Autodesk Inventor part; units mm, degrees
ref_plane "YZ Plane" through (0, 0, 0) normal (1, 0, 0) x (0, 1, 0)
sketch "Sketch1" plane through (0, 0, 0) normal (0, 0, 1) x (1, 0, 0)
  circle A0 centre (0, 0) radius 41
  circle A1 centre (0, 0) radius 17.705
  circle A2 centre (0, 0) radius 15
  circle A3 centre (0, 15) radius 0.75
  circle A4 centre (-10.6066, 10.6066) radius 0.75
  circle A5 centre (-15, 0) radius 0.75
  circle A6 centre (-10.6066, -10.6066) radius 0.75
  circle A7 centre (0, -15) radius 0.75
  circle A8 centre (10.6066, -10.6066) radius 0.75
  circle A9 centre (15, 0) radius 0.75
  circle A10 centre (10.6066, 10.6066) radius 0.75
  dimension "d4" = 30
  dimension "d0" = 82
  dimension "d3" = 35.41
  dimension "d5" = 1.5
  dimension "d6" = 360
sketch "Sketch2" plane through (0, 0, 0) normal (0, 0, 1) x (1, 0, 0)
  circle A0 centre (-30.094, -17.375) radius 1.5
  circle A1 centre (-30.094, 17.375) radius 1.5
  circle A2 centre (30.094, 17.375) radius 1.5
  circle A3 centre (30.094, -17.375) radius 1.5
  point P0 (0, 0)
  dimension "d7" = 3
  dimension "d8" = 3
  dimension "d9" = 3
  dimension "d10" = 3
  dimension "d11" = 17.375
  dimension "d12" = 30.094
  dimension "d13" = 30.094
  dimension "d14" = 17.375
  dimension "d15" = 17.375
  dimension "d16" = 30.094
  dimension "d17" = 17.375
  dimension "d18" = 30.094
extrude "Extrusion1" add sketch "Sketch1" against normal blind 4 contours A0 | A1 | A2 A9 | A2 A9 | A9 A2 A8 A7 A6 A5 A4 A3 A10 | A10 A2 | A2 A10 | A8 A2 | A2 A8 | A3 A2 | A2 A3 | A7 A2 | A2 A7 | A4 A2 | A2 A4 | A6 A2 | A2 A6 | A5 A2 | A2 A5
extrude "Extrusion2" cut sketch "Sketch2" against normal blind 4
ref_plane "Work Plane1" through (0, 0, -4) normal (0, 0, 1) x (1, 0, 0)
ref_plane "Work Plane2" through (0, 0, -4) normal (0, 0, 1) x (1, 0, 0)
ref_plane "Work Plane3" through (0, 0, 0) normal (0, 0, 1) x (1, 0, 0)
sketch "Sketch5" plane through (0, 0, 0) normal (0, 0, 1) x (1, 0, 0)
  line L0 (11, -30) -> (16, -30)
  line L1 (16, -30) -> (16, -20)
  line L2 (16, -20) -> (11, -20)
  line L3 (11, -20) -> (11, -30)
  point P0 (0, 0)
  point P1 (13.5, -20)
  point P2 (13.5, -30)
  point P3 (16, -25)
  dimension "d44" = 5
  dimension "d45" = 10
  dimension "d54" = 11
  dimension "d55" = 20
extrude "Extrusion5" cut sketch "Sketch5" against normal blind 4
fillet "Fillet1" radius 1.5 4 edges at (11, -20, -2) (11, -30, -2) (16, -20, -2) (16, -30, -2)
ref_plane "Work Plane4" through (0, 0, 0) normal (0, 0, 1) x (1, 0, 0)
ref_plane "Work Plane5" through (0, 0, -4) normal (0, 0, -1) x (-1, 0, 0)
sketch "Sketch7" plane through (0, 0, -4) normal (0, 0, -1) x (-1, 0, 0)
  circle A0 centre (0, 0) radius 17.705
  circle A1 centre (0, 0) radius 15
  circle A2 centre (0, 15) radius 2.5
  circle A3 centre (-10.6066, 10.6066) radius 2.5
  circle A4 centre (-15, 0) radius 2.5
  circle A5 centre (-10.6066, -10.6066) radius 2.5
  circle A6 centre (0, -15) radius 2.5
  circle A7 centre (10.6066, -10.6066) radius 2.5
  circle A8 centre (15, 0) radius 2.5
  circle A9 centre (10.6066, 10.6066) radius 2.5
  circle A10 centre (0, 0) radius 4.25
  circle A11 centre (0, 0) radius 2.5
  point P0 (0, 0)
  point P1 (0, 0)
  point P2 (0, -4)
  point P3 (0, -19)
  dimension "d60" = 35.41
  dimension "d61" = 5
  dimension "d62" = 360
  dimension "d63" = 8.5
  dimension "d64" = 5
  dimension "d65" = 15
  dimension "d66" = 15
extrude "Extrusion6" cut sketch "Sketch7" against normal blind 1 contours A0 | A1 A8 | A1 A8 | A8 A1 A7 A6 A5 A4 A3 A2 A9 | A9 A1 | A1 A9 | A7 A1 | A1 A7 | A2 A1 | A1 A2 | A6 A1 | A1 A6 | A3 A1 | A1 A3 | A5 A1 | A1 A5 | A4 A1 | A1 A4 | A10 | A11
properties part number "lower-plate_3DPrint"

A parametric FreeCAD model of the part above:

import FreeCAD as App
import Part
import Sketcher
from FreeCAD import Vector
Q = App.Units.Quantity


def edges_at(feature, points):
    """Names of the edges that pass closest to the given points."""
    edges = feature.Shape.Edges
    near = lambda p: min(range(len(edges)), key=lambda i: edges[i].distToShape(Part.Vertex(*p))[0])
    return sorted({f"Edge{near(p) + 1}" for p in points})

doc = App.newDocument("Part")
body = doc.addObject("PartDesign::Body", "Body")

# Sketch on XY plane
sketch1 = body.newObject("Sketcher::SketchObject", "Sketch")
sketch1.AttachmentSupport = (doc.getObject("XY_Plane"), [""])
sketch1.MapMode = "FlatFace"
sketch1.addGeometry(Part.Circle(Vector(0, 0, 0), Vector(0, 0, 1), 41), False)
sketch1.addConstraint([
    Sketcher.Constraint("Coincident", 0, 3, -1, 1),
    Sketcher.Constraint("Diameter", 0, Q("82 mm")),
])
pad1 = body.newObject("PartDesign::Pad", "Pad")
pad1.Profile = sketch1
pad1.Length = 4
pad1.Reversed = True

# Sketch on XY plane
sketch2 = body.newObject("Sketcher::SketchObject", "Sketch001")
sketch2.AttachmentSupport = (doc.getObject("XY_Plane"), [""])
sketch2.MapMode = "FlatFace"
sketch2.addGeometry([
    Part.Circle(Vector(-30.1, -17.4, 0), Vector(0, 0, 1), 1.5),
    Part.Circle(Vector(-30.1, 17.4, 0), Vector(0, 0, 1), 1.5),
    Part.Circle(Vector(30.1, 17.4, 0), Vector(0, 0, 1), 1.5),
    Part.Circle(Vector(30.1, -17.4, 0), Vector(0, 0, 1), 1.5),
], False)
sketch2.addConstraint([
    Sketcher.Constraint("Equal", 0, 1),
    Sketcher.Constraint("Equal", 1, 2),
    Sketcher.Constraint("Equal", 2, 3),
    Sketcher.Constraint("Symmetric", 0, 3, 2, 3, -1, 1),
    Sketcher.Constraint("Symmetric", 1, 3, 3, 3, -1, 1),
    Sketcher.Constraint("Symmetric", 1, 3, 2, 3, -2),
    Sketcher.Constraint("Diameter", 0, Q("3 mm")),
    Sketcher.Constraint("DistanceX", 0, 3, -1, 1, Q("30.094 mm")),
    Sketcher.Constraint("DistanceY", 0, 3, -1, 1, Q("17.375 mm")),
])
pocket1 = body.newObject("PartDesign::Pocket", "Pocket")
pocket1.Profile = sketch2
pocket1.Length = 4

# Sketch on XY plane
sketch3 = body.newObject("Sketcher::SketchObject", "Sketch002")
sketch3.AttachmentSupport = (doc.getObject("XY_Plane"), [""])
sketch3.MapMode = "FlatFace"
sketch3.addGeometry([
    Part.LineSegment(Vector(11, -20, 0), Vector(11, -30, 0)),
    Part.LineSegment(Vector(11, -30, 0), Vector(16, -30, 0)),
    Part.LineSegment(Vector(16, -30, 0), Vector(16, -20, 0)),
    Part.LineSegment(Vector(16, -20, 0), Vector(11, -20, 0)),
], False)
sketch3.addConstraint([
    Sketcher.Constraint("Coincident", 0, 2, 1, 1),
    Sketcher.Constraint("Coincident", 1, 2, 2, 1),
    Sketcher.Constraint("Coincident", 2, 2, 3, 1),
    Sketcher.Constraint("Coincident", 3, 2, 0, 1),
    Sketcher.Constraint("Vertical", 0),
    Sketcher.Constraint("Horizontal", 1),
    Sketcher.Constraint("Vertical", 2),
    Sketcher.Constraint("Horizontal", 3),
    Sketcher.Constraint("DistanceX", 1, 1, 1, 2, Q("5 mm")),
    Sketcher.Constraint("DistanceY", 0, 2, 0, 1, Q("10 mm")),
    Sketcher.Constraint("DistanceX", -1, 1, 0, 2, Q("11 mm")),
    Sketcher.Constraint("DistanceY", 2, 2, -1, 1, Q("20 mm")),
])
pocket2 = body.newObject("PartDesign::Pocket", "Pocket001")
pocket2.Profile = sketch3
pocket2.Length = 4
doc.recompute()

fillet = body.newObject("PartDesign::Fillet", "Fillet")
fillet.Base = (pocket2, edges_at(pocket2, [
    (11, -20, -2),
    (11, -30, -2),
    (16, -20, -2),
    (16, -30, -2),
]))
fillet.Radius = 1.5

# Sketch on XY plane
sketch4 = body.newObject("Sketcher::SketchObject", "Sketch003")
sketch4.AttachmentSupport = (doc.getObject("XY_Plane"), [""])
sketch4.MapMode = "FlatFace"
sketch4.AttachmentOffset = App.Placement(Vector(0, 0, -4), App.Rotation())
sketch4.addGeometry(Part.Circle(Vector(0, 0, 0), Vector(0, 0, 1), 18), False)
sketch4.addConstraint([
    Sketcher.Constraint("Coincident", 0, 3, -1, 1),
    Sketcher.Constraint("Diameter", 0, Q("35.41 mm")),
])
pocket3 = body.newObject("PartDesign::Pocket", "Pocket002")
pocket3.Profile = sketch4
pocket3.Length = 1
pocket3.Reversed = True

doc.recompute()
